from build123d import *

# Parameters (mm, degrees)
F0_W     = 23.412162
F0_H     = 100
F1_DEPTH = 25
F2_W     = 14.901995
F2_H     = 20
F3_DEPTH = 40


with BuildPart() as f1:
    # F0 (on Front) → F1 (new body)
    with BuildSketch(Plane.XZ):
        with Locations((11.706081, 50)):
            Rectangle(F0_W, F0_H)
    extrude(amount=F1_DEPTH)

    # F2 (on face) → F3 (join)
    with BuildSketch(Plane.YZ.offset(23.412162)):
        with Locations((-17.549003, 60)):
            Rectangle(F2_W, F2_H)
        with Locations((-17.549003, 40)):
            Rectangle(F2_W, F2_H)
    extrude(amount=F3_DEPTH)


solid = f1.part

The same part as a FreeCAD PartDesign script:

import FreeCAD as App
import Part
import Sketcher
from FreeCAD import Vector

doc = App.newDocument("Part")
body = doc.addObject("PartDesign::Body", "Body")

# Sketch on XZ plane
sketch1 = body.newObject("Sketcher::SketchObject", "Sketch")
sketch1.AttachmentSupport = (doc.getObject("XZ_Plane"), [""])
sketch1.MapMode = "FlatFace"
sketch1.addGeometry([
    Part.LineSegment(Vector(0, 100, 0), Vector(0, 0, 0)),
    Part.LineSegment(Vector(0, 0, 0), Vector(23.412162, 0, 0)),
    Part.LineSegment(Vector(23.412162, 0, 0), Vector(23.412162, 100, 0)),
    Part.LineSegment(Vector(23.412162, 100, 0), Vector(0, 100, 0)),
], False)
sketch1.addConstraint([
    Sketcher.Constraint("Coincident", 0, 2, 1, 1),
    Sketcher.Constraint("Coincident", 1, 2, 2, 1),
    Sketcher.Constraint("Coincident", 2, 2, 3, 1),
    Sketcher.Constraint("Coincident", 3, 2, 0, 1),
    Sketcher.Constraint("Vertical", 0),
    Sketcher.Constraint("Horizontal", 1),
    Sketcher.Constraint("Vertical", 2),
    Sketcher.Constraint("Horizontal", 3),
    Sketcher.Constraint("Coincident", 0, 2, -1, 1),
    Sketcher.Constraint("DistanceY", 0, 2, 0, 1, 100.0),
    Sketcher.Constraint("DistanceX", 1, 1, 1, 2, 23.412162),
])
pad1 = body.newObject("PartDesign::Pad", "Pad")
pad1.Profile = sketch1
pad1.Length = 25

# Sketch on YZ plane
sketch2 = body.newObject("Sketcher::SketchObject", "Sketch001")
sketch2.AttachmentSupport = (doc.getObject("YZ_Plane"), [""])
sketch2.MapMode = "FlatFace"
sketch2.AttachmentOffset = App.Placement(Vector(0, 0, 23.412162), App.Rotation())
sketch2.addGeometry([
    Part.LineSegment(Vector(-25, 70, 0), Vector(-25, 30, 0)),
    Part.LineSegment(Vector(-25, 30, 0), Vector(-10.098005, 30, 0)),
    Part.LineSegment(Vector(-10.098005, 30, 0), Vector(-10.098005, 70, 0)),
    Part.LineSegment(Vector(-10.098005, 70, 0), Vector(-25, 70, 0)),
], False)
sketch2.addConstraint([
    Sketcher.Constraint("Coincident", 0, 2, 1, 1),
    Sketcher.Constraint("Coincident", 1, 2, 2, 1),
    Sketcher.Constraint("Coincident", 2, 2, 3, 1),
    Sketcher.Constraint("Coincident", 3, 2, 0, 1),
    Sketcher.Constraint("Vertical", 0),
    Sketcher.Constraint("Horizontal", 1),
    Sketcher.Constraint("Vertical", 2),
    Sketcher.Constraint("Horizontal", 3),
    Sketcher.Constraint("DistanceY", 0, 2, 0, 1, 40.0),
    Sketcher.Constraint("DistanceX", 0, 2, -1, 1, 25.0),
    Sketcher.Constraint("DistanceY", -1, 1, 0, 2, 30.0),
    Sketcher.Constraint("DistanceX", 1, 1, 1, 2, 14.901995),
])
pad2 = body.newObject("PartDesign::Pad", "Pad001")
pad2.Profile = sketch2
pad2.Length = 40

doc.recompute()
